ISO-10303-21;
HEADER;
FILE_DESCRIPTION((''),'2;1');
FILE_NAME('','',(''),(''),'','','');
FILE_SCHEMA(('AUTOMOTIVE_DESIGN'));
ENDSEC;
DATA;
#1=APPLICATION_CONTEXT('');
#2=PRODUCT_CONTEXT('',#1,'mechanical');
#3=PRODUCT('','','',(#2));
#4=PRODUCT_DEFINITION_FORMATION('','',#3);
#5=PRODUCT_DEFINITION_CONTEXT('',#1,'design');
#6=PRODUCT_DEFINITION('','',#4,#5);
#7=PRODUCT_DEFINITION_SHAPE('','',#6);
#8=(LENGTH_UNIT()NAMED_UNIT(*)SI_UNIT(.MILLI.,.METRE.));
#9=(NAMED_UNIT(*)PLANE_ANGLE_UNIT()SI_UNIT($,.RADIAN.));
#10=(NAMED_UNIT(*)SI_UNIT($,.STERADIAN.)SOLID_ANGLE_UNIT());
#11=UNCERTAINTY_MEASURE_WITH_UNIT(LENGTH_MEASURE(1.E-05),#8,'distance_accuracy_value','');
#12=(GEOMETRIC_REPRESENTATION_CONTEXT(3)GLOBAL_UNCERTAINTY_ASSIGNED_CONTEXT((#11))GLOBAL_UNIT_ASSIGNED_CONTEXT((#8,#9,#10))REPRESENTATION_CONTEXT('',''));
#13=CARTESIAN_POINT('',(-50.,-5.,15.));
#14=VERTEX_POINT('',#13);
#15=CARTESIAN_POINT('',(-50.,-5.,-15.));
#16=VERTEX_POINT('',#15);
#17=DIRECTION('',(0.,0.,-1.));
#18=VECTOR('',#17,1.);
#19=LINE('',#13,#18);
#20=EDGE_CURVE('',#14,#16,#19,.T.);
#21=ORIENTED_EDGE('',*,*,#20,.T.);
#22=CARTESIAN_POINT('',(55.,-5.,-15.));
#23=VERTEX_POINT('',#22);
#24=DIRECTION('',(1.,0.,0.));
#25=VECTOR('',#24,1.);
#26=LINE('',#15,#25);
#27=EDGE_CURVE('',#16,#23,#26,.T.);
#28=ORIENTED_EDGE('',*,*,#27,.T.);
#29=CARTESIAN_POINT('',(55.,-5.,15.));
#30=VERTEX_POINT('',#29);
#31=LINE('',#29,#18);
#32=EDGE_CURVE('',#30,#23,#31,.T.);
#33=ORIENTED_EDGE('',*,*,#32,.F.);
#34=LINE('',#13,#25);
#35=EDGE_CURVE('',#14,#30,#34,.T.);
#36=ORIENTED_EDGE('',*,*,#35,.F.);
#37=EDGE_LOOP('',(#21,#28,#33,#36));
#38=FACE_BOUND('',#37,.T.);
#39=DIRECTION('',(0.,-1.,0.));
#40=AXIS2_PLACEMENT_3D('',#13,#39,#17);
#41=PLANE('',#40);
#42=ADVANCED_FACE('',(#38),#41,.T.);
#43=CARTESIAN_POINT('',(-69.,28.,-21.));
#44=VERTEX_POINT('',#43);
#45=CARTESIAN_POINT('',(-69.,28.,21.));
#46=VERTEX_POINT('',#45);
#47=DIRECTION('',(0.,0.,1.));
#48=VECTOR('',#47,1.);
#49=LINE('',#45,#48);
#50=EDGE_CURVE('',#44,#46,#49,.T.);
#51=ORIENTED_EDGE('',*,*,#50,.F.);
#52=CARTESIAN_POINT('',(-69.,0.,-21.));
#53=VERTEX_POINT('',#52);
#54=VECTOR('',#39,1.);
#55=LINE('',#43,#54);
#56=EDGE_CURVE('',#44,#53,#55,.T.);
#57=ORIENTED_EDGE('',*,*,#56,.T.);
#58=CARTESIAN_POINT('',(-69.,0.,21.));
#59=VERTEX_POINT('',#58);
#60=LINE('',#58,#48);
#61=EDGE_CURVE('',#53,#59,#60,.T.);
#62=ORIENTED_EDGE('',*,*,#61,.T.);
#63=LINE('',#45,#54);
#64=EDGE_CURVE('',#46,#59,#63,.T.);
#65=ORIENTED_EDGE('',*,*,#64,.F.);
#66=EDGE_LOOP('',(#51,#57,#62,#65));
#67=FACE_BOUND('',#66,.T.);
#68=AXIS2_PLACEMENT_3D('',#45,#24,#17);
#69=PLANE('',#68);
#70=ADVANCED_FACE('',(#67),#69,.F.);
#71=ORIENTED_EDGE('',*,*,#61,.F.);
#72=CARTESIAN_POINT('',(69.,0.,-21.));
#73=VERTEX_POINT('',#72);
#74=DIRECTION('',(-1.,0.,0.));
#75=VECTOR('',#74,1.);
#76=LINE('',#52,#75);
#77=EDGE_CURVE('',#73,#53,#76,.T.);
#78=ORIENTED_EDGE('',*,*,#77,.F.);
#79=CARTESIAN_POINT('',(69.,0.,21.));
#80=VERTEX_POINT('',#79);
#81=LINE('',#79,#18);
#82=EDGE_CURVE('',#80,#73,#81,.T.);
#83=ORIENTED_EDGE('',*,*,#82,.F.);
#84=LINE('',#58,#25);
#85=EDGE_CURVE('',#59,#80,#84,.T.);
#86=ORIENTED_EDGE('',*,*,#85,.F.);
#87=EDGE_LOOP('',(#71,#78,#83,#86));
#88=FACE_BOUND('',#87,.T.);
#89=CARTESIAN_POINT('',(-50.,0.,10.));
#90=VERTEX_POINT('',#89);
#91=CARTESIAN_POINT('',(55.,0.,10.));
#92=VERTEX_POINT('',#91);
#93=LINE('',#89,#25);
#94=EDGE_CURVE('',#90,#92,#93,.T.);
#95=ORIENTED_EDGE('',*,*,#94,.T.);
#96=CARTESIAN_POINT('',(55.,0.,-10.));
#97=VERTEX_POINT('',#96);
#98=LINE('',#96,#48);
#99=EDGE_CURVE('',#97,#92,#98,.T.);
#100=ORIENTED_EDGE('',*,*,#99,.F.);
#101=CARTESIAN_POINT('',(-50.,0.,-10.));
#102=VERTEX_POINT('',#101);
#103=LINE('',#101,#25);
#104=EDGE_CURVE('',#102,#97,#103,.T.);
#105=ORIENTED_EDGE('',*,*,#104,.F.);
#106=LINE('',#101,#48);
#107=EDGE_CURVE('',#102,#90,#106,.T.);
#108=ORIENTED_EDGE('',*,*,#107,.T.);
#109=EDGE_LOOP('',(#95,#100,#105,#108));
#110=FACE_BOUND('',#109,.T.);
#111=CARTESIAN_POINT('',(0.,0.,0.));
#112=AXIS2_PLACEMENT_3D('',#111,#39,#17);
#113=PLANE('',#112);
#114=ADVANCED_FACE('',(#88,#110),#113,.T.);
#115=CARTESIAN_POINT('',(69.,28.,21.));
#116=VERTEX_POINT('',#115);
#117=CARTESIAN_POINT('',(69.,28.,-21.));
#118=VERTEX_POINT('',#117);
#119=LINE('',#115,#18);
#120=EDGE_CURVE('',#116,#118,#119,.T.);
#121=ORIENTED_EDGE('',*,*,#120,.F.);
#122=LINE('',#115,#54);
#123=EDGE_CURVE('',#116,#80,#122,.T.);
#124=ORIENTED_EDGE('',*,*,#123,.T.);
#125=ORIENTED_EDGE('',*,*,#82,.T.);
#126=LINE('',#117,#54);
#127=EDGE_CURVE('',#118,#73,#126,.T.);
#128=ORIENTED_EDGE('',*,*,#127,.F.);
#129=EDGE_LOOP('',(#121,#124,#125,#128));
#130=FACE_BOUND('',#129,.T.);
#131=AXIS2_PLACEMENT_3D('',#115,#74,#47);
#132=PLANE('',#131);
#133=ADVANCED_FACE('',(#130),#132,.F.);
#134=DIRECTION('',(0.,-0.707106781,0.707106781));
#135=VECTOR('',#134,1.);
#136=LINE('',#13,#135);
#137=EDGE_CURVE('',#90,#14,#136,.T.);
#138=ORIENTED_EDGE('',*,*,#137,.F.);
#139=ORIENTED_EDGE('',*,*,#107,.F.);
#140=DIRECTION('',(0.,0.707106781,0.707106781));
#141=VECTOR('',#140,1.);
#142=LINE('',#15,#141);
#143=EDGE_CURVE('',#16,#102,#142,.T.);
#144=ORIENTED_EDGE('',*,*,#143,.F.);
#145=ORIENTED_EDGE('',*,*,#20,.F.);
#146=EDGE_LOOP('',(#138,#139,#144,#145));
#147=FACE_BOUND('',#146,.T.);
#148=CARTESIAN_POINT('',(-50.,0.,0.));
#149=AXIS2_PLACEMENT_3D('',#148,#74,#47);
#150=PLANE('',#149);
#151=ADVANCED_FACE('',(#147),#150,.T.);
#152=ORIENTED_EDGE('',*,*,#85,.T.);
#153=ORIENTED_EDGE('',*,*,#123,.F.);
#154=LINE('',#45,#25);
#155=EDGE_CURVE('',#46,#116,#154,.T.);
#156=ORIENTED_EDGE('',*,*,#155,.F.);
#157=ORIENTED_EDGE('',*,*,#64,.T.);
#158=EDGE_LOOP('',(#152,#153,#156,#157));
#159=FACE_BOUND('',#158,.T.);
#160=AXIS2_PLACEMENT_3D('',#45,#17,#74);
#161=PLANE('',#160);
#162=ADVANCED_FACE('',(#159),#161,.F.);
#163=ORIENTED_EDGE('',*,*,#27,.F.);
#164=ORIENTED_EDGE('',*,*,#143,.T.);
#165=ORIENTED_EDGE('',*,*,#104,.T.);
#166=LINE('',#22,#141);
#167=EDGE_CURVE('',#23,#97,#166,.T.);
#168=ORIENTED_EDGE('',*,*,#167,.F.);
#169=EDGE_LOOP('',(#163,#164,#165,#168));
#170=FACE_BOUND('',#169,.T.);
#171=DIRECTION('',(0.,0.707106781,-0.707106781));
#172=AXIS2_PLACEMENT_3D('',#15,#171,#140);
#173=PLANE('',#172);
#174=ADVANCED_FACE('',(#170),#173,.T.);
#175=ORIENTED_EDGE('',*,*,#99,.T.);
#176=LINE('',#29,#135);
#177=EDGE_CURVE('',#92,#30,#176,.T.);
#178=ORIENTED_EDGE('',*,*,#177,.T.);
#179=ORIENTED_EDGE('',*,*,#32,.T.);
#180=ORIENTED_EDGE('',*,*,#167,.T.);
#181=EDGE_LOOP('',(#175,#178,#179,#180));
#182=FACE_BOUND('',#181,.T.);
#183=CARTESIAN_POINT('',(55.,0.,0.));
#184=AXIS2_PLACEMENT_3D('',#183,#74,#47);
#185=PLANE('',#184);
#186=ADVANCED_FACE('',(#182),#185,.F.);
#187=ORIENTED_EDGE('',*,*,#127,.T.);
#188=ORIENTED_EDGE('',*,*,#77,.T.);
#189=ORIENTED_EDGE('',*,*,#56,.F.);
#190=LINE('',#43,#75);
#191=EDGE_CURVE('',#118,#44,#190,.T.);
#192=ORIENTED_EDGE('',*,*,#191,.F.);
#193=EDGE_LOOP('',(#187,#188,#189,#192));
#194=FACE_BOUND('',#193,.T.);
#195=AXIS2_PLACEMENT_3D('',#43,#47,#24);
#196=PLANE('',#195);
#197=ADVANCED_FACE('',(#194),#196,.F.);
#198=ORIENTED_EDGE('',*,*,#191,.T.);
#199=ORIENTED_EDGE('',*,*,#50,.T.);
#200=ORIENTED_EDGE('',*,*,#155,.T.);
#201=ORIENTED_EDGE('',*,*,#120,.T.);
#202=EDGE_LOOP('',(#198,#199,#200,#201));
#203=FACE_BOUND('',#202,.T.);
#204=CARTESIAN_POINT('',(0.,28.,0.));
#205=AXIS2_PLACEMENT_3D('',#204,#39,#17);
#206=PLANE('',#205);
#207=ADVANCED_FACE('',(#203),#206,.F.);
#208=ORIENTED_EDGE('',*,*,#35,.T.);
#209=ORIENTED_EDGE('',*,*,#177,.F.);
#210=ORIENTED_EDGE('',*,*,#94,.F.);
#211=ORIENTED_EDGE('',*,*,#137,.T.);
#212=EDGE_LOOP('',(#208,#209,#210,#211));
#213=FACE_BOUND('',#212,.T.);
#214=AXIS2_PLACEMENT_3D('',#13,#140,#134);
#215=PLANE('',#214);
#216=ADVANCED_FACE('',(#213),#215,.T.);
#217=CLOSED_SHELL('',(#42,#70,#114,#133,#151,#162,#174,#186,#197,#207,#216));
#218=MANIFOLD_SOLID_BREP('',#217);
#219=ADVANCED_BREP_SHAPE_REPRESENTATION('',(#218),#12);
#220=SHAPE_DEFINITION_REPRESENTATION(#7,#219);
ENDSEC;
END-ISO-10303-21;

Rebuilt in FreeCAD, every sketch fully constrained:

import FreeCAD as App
import Part
import Sketcher
from FreeCAD import Vector

doc = App.newDocument("Part")
body = doc.addObject("PartDesign::Body", "Body")

sketch1 = doc.addObject("Sketcher::SketchObject", "Sketch")
body.addObject(sketch1)
sketch1.AttachmentSupport = (doc.XZ_Plane, [""])
sketch1.MapMode = "FlatFace"
sketch1.addGeometry([
    Part.LineSegment(Vector(-69, -21, 0), Vector(-69, 21, 0)),
    Part.LineSegment(Vector(-69, 21, 0), Vector(69, 21, 0)),
    Part.LineSegment(Vector(69, 21, 0), Vector(69, -21, 0)),
    Part.LineSegment(Vector(69, -21, 0), Vector(-69, -21, 0)),
], False)
sketch1.addConstraint([
    Sketcher.Constraint("Coincident", 0, 2, 1, 1),
    Sketcher.Constraint("Coincident", 1, 2, 2, 1),
    Sketcher.Constraint("Coincident", 2, 2, 3, 1),
    Sketcher.Constraint("Coincident", 3, 2, 0, 1),
    Sketcher.Constraint("Vertical", 0),
    Sketcher.Constraint("Horizontal", 1),
    Sketcher.Constraint("Vertical", 2),
    Sketcher.Constraint("Horizontal", 3),
    Sketcher.Constraint("Symmetric", 0, 2, 2, 2, -1, 1),
    Sketcher.Constraint("DistanceX", 1, 1, 1, 2, 138.0),
    Sketcher.Constraint("DistanceY", 0, 1, 0, 2, 42.0),
])
pad1 = doc.addObject("PartDesign::Pad", "Pad")
body.addObject(pad1)
pad1.Profile = sketch1
pad1.Length = 28
pad1.Reversed = True

sketch2 = doc.addObject("Sketcher::SketchObject", "Sketch001")
body.addObject(sketch2)
sketch2.AttachmentSupport = (doc.YZ_Plane, [""])
sketch2.MapMode = "FlatFace"
sketch2.AttachmentOffset = App.Placement(Vector(0, 0, 55), App.Rotation())
sketch2.addGeometry([
    Part.LineSegment(Vector(-5, 15, 0), Vector(-5, -15, 0)),
    Part.LineSegment(Vector(-5, -15, 0), Vector(0, -10, 0)),
    Part.LineSegment(Vector(0, -10, 0), Vector(0, 10, 0)),
    Part.LineSegment(Vector(0, 10, 0), Vector(-5, 15, 0)),
], False)
sketch2.addConstraint([
    Sketcher.Constraint("Coincident", 0, 2, 1, 1),
    Sketcher.Constraint("Coincident", 1, 2, 2, 1),
    Sketcher.Constraint("Coincident", 2, 2, 3, 1),
    Sketcher.Constraint("Coincident", 3, 2, 0, 1),
    Sketcher.Constraint("Vertical", 0),
    Sketcher.Constraint("Vertical", 2),
    Sketcher.Constraint("Symmetric", 1, 2, 2, 2, -1, 1),
    Sketcher.Constraint("Perpendicular", 1, 3),
    Sketcher.Constraint("Equal", 1, 3),
    Sketcher.Constraint("DistanceY", 0, 2, 0, 1, 30.0),
    Sketcher.Constraint("DistanceY", 2, 1, 2, 2, 20.0),
])
pad2 = doc.addObject("PartDesign::Pad", "Pad001")
body.addObject(pad2)
pad2.Profile = sketch2
pad2.Length = 105
pad2.Reversed = True

doc.recompute()
